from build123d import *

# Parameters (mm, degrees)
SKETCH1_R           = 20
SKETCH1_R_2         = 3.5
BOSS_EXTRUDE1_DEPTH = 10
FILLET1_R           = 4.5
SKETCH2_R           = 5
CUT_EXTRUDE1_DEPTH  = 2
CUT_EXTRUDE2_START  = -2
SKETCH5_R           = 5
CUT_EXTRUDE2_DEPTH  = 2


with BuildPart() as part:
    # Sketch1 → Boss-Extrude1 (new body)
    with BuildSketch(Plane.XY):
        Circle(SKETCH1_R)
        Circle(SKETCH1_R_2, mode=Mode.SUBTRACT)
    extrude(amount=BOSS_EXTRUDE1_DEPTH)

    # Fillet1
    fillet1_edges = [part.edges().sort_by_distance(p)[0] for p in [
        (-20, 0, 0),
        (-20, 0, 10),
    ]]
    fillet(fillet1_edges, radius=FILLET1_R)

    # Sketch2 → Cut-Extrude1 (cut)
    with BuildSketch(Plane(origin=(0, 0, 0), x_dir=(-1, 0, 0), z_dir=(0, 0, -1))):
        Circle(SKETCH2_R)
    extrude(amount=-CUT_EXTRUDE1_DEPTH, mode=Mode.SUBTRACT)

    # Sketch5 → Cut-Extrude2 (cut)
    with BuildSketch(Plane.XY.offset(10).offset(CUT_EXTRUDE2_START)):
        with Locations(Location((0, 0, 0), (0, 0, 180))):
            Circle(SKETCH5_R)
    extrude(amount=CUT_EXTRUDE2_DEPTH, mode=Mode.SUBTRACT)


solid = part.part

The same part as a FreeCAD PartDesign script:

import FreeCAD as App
import Part
import Sketcher
from FreeCAD import Vector
Q = App.Units.Quantity


def edges_at(feature, points):
    """Names of the edges that pass closest to the given points."""
    edges = feature.Shape.Edges
    near = lambda p: min(range(len(edges)), key=lambda i: edges[i].distToShape(Part.Vertex(*p))[0])
    return sorted({f"Edge{near(p) + 1}" for p in points})

doc = App.newDocument("Part")
body = doc.addObject("PartDesign::Body", "Body")

# Sketch on XY plane
sketch1 = body.newObject("Sketcher::SketchObject", "Sketch")
sketch1.AttachmentSupport = (doc.getObject("XY_Plane"), [""])
sketch1.MapMode = "FlatFace"
sketch1.addGeometry([
    Part.Circle(Vector(0, 0, 0), Vector(0, 0, 1), 20),
    Part.Circle(Vector(0, 0, 0), Vector(0, 0, 1), 3.5),
], False)
sketch1.addConstraint([
    Sketcher.Constraint("Coincident", 0, 3, -1, 1),
    Sketcher.Constraint("Coincident", 1, 3, -1, 1),
    Sketcher.Constraint("Diameter", 0, Q("40 mm")),
    Sketcher.Constraint("Diameter", 1, Q("7 mm")),
])
pad1 = body.newObject("PartDesign::Pad", "Pad")
pad1.Profile = sketch1
pad1.Length = 10
doc.recompute()

fillet = body.newObject("PartDesign::Fillet", "Fillet")
fillet.Base = (pad1, edges_at(pad1, [(-20, 0, 0), (-20, 0, 10)]))
fillet.Radius = 4.5

# Sketch on XY plane
sketch2 = body.newObject("Sketcher::SketchObject", "Sketch001")
sketch2.AttachmentSupport = (doc.getObject("XY_Plane"), [""])
sketch2.MapMode = "FlatFace"
sketch2.addGeometry(Part.Circle(Vector(0, 0, 0), Vector(0, 0, 1), 5), False)
sketch2.addConstraint([
    Sketcher.Constraint("Coincident", 0, 3, -1, 1),
    Sketcher.Constraint("Diameter", 0, Q("10 mm")),
])
pocket1 = body.newObject("PartDesign::Pocket", "Pocket")
pocket1.Profile = sketch2
pocket1.Length = 2
pocket1.Reversed = True

# Sketch on XY plane
sketch3 = body.newObject("Sketcher::SketchObject", "Sketch002")
sketch3.AttachmentSupport = (doc.getObject("XY_Plane"), [""])
sketch3.MapMode = "FlatFace"
sketch3.AttachmentOffset = App.Placement(Vector(0, 0, 8), App.Rotation())
sketch3.addGeometry(Part.Circle(Vector(0, 0, 0), Vector(0, 0, 1), 5), False)
sketch3.addConstraint([
    Sketcher.Constraint("Coincident", 0, 3, -1, 1),
    Sketcher.Constraint("Diameter", 0, Q("10 mm")),
])
pocket2 = body.newObject("PartDesign::Pocket", "Pocket001")
pocket2.Profile = sketch3
pocket2.Length = 2
pocket2.Reversed = True

doc.recompute()
